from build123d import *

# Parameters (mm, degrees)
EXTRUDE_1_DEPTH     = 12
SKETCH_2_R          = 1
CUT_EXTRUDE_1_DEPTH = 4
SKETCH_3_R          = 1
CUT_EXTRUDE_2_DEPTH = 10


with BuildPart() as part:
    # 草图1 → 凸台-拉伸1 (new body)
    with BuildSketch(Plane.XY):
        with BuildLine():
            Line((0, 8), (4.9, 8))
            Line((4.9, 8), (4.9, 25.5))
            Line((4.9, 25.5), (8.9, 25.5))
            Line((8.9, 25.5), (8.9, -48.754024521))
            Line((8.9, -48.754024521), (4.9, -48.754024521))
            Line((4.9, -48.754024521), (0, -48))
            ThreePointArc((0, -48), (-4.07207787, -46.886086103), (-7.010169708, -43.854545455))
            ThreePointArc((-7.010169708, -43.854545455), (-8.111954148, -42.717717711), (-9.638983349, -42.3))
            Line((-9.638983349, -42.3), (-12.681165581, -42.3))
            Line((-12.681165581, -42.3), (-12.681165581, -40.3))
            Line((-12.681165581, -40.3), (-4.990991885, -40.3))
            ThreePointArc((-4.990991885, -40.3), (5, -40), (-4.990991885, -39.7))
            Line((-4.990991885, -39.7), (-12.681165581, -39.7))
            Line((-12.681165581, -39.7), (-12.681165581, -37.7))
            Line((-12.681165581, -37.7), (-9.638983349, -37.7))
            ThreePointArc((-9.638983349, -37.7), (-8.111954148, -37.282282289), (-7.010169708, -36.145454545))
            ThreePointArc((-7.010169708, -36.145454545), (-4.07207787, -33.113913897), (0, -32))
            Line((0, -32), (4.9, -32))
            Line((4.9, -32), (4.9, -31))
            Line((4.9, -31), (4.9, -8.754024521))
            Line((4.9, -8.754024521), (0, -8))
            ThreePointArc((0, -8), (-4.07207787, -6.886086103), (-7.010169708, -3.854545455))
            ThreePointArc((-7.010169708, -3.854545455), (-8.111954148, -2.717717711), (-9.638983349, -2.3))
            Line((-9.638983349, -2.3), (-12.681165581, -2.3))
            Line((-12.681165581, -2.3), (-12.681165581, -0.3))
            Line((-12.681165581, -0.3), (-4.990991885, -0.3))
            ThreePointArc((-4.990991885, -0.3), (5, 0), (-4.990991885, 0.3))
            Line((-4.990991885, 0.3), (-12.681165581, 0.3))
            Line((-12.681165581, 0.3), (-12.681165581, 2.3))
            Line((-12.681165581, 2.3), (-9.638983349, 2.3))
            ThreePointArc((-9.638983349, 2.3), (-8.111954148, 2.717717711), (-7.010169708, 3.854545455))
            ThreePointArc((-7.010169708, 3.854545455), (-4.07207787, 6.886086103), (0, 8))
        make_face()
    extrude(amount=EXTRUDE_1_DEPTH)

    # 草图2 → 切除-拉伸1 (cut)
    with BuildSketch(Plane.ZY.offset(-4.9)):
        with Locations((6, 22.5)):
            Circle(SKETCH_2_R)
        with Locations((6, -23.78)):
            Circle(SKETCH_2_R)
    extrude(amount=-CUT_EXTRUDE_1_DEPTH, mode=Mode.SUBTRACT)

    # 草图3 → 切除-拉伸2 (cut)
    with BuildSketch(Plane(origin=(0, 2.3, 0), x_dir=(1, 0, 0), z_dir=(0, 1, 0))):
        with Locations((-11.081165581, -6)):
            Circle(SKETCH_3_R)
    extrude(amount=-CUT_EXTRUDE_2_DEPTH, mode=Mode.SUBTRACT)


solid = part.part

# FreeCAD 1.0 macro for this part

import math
import FreeCAD as App
import Part
import Sketcher

V = App.Vector

doc = App.newDocument("Part")
body = doc.addObject("PartDesign::Body", "Body")

sketch1 = doc.addObject("Sketcher::SketchObject", "Sketch")
body.addObject(sketch1)
sketch1.AttachmentSupport = (doc.XY_Plane, [""])
sketch1.MapMode = "FlatFace"
sketch1.addGeometry([
    Part.LineSegment(V(4.9, 8, 0), V(0, 8, 0)),
    Part.ArcOfCircle(Part.Circle(V(0, 0, 0), V(0, 0, 1), 8), math.radians(90), math.radians(151)),
    Part.ArcOfCircle(Part.Circle(V(-9.6, 5.3, 0), V(0, 0, 1), 3), math.radians(-90), math.radians(-29)),
    Part.LineSegment(V(-9.6, 2.3, 0), V(-12.7, 2.3, 0)),
    Part.LineSegment(V(-12.7, 2.3, 0), V(-12.7, 0.3, 0)),
    Part.LineSegment(V(-12.7, 0.3, 0), V(-5, 0.3, 0)),
    Part.ArcOfCircle(Part.Circle(V(0, 0, 0), V(0, 0, 1), 5), math.radians(-177), math.radians(177)),
    Part.LineSegment(V(-5, -0.3, 0), V(-12.7, -0.3, 0)),
    Part.LineSegment(V(-12.7, -0.3, 0), V(-12.7, -2.3, 0)),
    Part.LineSegment(V(-12.7, -2.3, 0), V(-9.6, -2.3, 0)),
    Part.ArcOfCircle(Part.Circle(V(-9.6, -5.3, 0), V(0, 0, 1), 3), math.radians(29), math.radians(90)),
    Part.ArcOfCircle(Part.Circle(V(0, 0, 0), V(0, 0, 1), 8), math.radians(-151), math.radians(-90)),
    Part.LineSegment(V(0, -8, 0), V(4.9, -8.8, 0)),
    Part.LineSegment(V(4.9, -8.8, 0), V(4.9, -32, 0)),
    Part.LineSegment(V(4.9, -32, 0), V(0, -32, 0)),
    Part.ArcOfCircle(Part.Circle(V(0, -40, 0), V(0, 0, 1), 8), math.radians(90), math.radians(151)),
    Part.ArcOfCircle(Part.Circle(V(-9.6, -34.7, 0), V(0, 0, 1), 3), math.radians(-90), math.radians(-29)),
    Part.LineSegment(V(-9.6, -37.7, 0), V(-12.7, -37.7, 0)),
    Part.LineSegment(V(-12.7, -37.7, 0), V(-12.7, -39.7, 0)),
    Part.LineSegment(V(-12.7, -39.7, 0), V(-5, -39.7, 0)),
    Part.ArcOfCircle(Part.Circle(V(0, -40, 0), V(0, 0, 1), 5), math.radians(-177), math.radians(177)),
    Part.LineSegment(V(-5, -40.3, 0), V(-12.7, -40.3, 0)),
    Part.LineSegment(V(-12.7, -40.3, 0), V(-12.7, -42.3, 0)),
    Part.LineSegment(V(-12.7, -42.3, 0), V(-9.6, -42.3, 0)),
    Part.ArcOfCircle(Part.Circle(V(-9.6, -45.3, 0), V(0, 0, 1), 3), math.radians(29), math.radians(90)),
    Part.ArcOfCircle(Part.Circle(V(0, -40, 0), V(0, 0, 1), 8), math.radians(-151), math.radians(-90)),
    Part.LineSegment(V(0, -48, 0), V(4.9, -48.8, 0)),
    Part.LineSegment(V(4.9, -48.8, 0), V(8.9, -48.8, 0)),
    Part.LineSegment(V(8.9, -48.8, 0), V(8.9, 25.5, 0)),
    Part.LineSegment(V(8.9, 25.5, 0), V(4.9, 25.5, 0)),
    Part.LineSegment(V(4.9, 25.5, 0), V(4.9, 8, 0)),
], False)
sketch1.addConstraint([
    Sketcher.Constraint("Tangent", 0, 2, 1, 1),
    Sketcher.Constraint("Tangent", 1, 2, 2, 2),
    Sketcher.Constraint("Tangent", 2, 1, 3, 1),
    Sketcher.Constraint("Coincident", 3, 2, 4, 1),
    Sketcher.Constraint("Coincident", 4, 2, 5, 1),
    Sketcher.Constraint("Coincident", 5, 2, 6, 2),
    Sketcher.Constraint("Coincident", 6, 1, 7, 1),
    Sketcher.Constraint("Coincident", 7, 2, 8, 1),
    Sketcher.Constraint("Coincident", 8, 2, 9, 1),
    Sketcher.Constraint("Tangent", 9, 2, 10, 2),
    Sketcher.Constraint("Tangent", 10, 1, 11, 1),
    Sketcher.Constraint("Coincident", 11, 2, 12, 1),
    Sketcher.Constraint("Coincident", 12, 2, 13, 1),
    Sketcher.Constraint("Coincident", 13, 2, 14, 1),
    Sketcher.Constraint("Tangent", 14, 2, 15, 1),
    Sketcher.Constraint("Tangent", 15, 2, 16, 2),
    Sketcher.Constraint("Tangent", 16, 1, 17, 1),
    Sketcher.Constraint("Coincident", 17, 2, 18, 1),
    Sketcher.Constraint("Coincident", 18, 2, 19, 1),
    Sketcher.Constraint("Coincident", 19, 2, 20, 2),
    Sketcher.Constraint("Coincident", 20, 1, 21, 1),
    Sketcher.Constraint("Coincident", 21, 2, 22, 1),
    Sketcher.Constraint("Coincident", 22, 2, 23, 1),
    Sketcher.Constraint("Tangent", 23, 2, 24, 2),
    Sketcher.Constraint("Tangent", 24, 1, 25, 1),
    Sketcher.Constraint("Coincident", 25, 2, 26, 1),
    Sketcher.Constraint("Coincident", 26, 2, 27, 1),
    Sketcher.Constraint("Coincident", 27, 2, 28, 1),
    Sketcher.Constraint("Coincident", 28, 2, 29, 1),
    Sketcher.Constraint("Coincident", 29, 2, 30, 1),
    Sketcher.Constraint("Coincident", 30, 2, 0, 1),
    Sketcher.Constraint("Horizontal", 0),
    Sketcher.Constraint("Horizontal", 3),
    Sketcher.Constraint("Vertical", 4),
    Sketcher.Constraint("Horizontal", 5),
    Sketcher.Constraint("Horizontal", 7),
    Sketcher.Constraint("Vertical", 8),
    Sketcher.Constraint("Horizontal", 9),
    Sketcher.Constraint("Vertical", 13),
    Sketcher.Constraint("Horizontal", 14),
    Sketcher.Constraint("Horizontal", 17),
    Sketcher.Constraint("Vertical", 18),
    Sketcher.Constraint("Horizontal", 19),
    Sketcher.Constraint("Horizontal", 21),
    Sketcher.Constraint("Vertical", 22),
    Sketcher.Constraint("Horizontal", 23),
    Sketcher.Constraint("Horizontal", 27),
    Sketcher.Constraint("Vertical", 28),
    Sketcher.Constraint("Horizontal", 29),
    Sketcher.Constraint("Vertical", 30),
    Sketcher.Constraint("Coincident", 1, 3, -1, 1),
    Sketcher.Constraint("Coincident", 6, 3, -1, 1),
    Sketcher.Constraint("Coincident", 11, 3, -1, 1),
    Sketcher.Constraint("Coincident", 20, 3, 15, 3),
    Sketcher.Constraint("Coincident", 25, 3, 15, 3),
    Sketcher.Constraint("Equal", 2, 10),
    Sketcher.Constraint("Equal", 1, 11),
    Sketcher.Constraint("Equal", 11, 15),
    Sketcher.Constraint("Equal", 10, 16),
    Sketcher.Constraint("Equal", 6, 20),
    Sketcher.Constraint("Equal", 16, 24),
    Sketcher.Constraint("Equal", 15, 25),
    Sketcher.Constraint("Symmetric", 4, 2, 7, 2, -1),
    Sketcher.Constraint("PointOnObject", 15, 3, -2),
    Sketcher.Constraint("PointOnObject", 11, 2, -2),
    Sketcher.Constraint("PointOnObject", 25, 2, -2),
    Sketcher.Constraint("Parallel", 12, 26),
    Sketcher.Constraint("Vertical", 2, 3, 10, 3),
    Sketcher.Constraint("Vertical", 10, 3, 16, 3),
    Sketcher.Constraint("Vertical", 16, 3, 24, 3),
    Sketcher.Constraint("Vertical", 8, 2, 17, 2),
    Sketcher.Constraint("Vertical", 6, 1, 19, 2),
    Sketcher.Constraint("Vertical", 19, 2, 20, 1),
    Sketcher.Constraint("Vertical", 18, 2, 21, 2),
    Sketcher.Constraint("Vertical", 13, 2, 26, 2),
    Sketcher.Constraint("Vertical", 26, 2, 29, 2),
    Sketcher.Constraint("Radius", 1, 8.0),
    Sketcher.Constraint("Radius", 2, 3.0),
    Sketcher.Constraint("Radius", 6, 5.0),
    Sketcher.Constraint("DistanceX", 27, 1, 27, 2, 4.0),
    Sketcher.Constraint("DistanceY", 4, 2, 4, 1, 2.0),
    Sketcher.Constraint("DistanceX", 0, 2, 0, 1, 4.9),
    Sketcher.Constraint("DistanceY", 30, 2, 30, 1, 17.5),
    Sketcher.Constraint("DistanceY", 15, 3, -1, 1, 40.0),
    Sketcher.Constraint("DistanceY", -1, 1, 2, 3, 5.3),
    Sketcher.Constraint("DistanceX", 3, 2, 3, 1, 3.042182),
    Sketcher.Constraint("DistanceY", 13, 2, 13, 1, 23.245975),
])
pad1 = doc.addObject("PartDesign::Pad", "Pad")
body.addObject(pad1)
pad1.Profile = sketch1
pad1.Length = 12

sketch2 = doc.addObject("Sketcher::SketchObject", "Sketch001")
body.addObject(sketch2)
sketch2.AttachmentSupport = (doc.YZ_Plane, [""])
sketch2.MapMode = "FlatFace"
sketch2.AttachmentOffset = App.Placement(V(0, 0, 4.9), App.Rotation())
sketch2.addGeometry([
    Part.Circle(V(22.5, 6, 0), V(0, 0, 1), 1),
    Part.Circle(V(-23.8, 6, 0), V(0, 0, 1), 1),
], False)
sketch2.addConstraint([
    Sketcher.Constraint("Equal", 0, 1),
    Sketcher.Constraint("Horizontal", 0, 3, 1, 3),
    Sketcher.Constraint("Diameter", 0, 2.0),
    Sketcher.Constraint("DistanceY", -1, 1, 0, 3, 6.0),
    Sketcher.Constraint("DistanceX", -1, 1, 0, 3, 22.5),
    Sketcher.Constraint("DistanceX", 1, 3, -1, 1, 23.78),
])
pocket1 = doc.addObject("PartDesign::Pocket", "Pocket")
body.addObject(pocket1)
pocket1.Profile = sketch2
pocket1.Length = 4
pocket1.Reversed = True

sketch3 = doc.addObject("Sketcher::SketchObject", "Sketch002")
body.addObject(sketch3)
sketch3.AttachmentSupport = (doc.XZ_Plane, [""])
sketch3.MapMode = "FlatFace"
sketch3.AttachmentOffset = App.Placement(V(0, 0, -2.3), App.Rotation())
sketch3.addGeometry(Part.Circle(V(-11.1, 6, 0), V(0, 0, 1), 1), False)
sketch3.addConstraint([
    Sketcher.Constraint("Diameter", 0, 2.0),
    Sketcher.Constraint("DistanceY", -1, 1, 0, 3, 6.0),
    Sketcher.Constraint("DistanceX", 0, 3, -1, 1, 11.081166),
])
pocket2 = doc.addObject("PartDesign::Pocket", "Pocket001")
body.addObject(pocket2)
pocket2.Profile = sketch3
pocket2.Length = 10
pocket2.Reversed = True

doc.recompute()
